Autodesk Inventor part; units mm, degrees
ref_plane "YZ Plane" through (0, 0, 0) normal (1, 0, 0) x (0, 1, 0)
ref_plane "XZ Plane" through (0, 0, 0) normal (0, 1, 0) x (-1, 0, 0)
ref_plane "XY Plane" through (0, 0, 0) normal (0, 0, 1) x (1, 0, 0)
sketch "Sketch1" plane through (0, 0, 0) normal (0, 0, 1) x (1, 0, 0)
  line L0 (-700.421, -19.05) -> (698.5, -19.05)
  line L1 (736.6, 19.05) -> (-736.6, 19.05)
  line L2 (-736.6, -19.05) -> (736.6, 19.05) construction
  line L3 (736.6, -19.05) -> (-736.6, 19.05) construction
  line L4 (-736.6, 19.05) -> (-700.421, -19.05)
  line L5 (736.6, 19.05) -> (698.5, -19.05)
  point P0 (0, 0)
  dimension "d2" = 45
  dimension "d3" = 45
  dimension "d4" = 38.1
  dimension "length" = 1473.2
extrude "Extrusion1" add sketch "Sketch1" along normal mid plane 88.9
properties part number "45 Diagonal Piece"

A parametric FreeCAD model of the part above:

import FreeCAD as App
import Part
import Sketcher

V = App.Vector
Q = App.Units.Quantity

doc = App.newDocument("Part")
body = doc.addObject("PartDesign::Body", "Body")

# Sketch on XY plane
sketch1 = doc.addObject("Sketcher::SketchObject", "Sketch")
body.addObject(sketch1)
sketch1.AttachmentSupport = (doc.XY_Plane, [""])
sketch1.MapMode = "FlatFace"
sketch1.addGeometry([
    Part.LineSegment(V(-737, 19, 0), V(-700, -19, 0)),
    Part.LineSegment(V(-700, -19, 0), V(698, -19, 0)),
    Part.LineSegment(V(698, -19, 0), V(737, 19, 0)),
    Part.LineSegment(V(737, 19, 0), V(-737, 19, 0)),
], False)
sketch1.addConstraint([
    Sketcher.Constraint("Coincident", 0, 2, 1, 1),
    Sketcher.Constraint("Coincident", 1, 2, 2, 1),
    Sketcher.Constraint("Coincident", 2, 2, 3, 1),
    Sketcher.Constraint("Coincident", 3, 2, 0, 1),
    Sketcher.Constraint("Horizontal", 1),
    Sketcher.Constraint("Horizontal", 3),
    Sketcher.Constraint("DistanceX", 3, 2, 3, 1, Q("58 in")),
    Sketcher.Constraint("Angle", 2, Q("45 deg")),
    Sketcher.Constraint("DistanceX", 1, 2, 2, 2, Q("1.5 in")),
    Sketcher.Constraint("DistanceX", -1, 1, 2, 2, Q("29 in")),
    Sketcher.Constraint("DistanceY", 0, 2, -1, 1, Q("0.75 in")),
    Sketcher.Constraint("DistanceX", 1, 1, 1, 2, 1398.921),
])
pad1 = doc.addObject("PartDesign::Pad", "Pad")
body.addObject(pad1)
pad1.Profile = sketch1
pad1.Length = Q("3.5 in")
pad1.Midplane = True

doc.recompute()
